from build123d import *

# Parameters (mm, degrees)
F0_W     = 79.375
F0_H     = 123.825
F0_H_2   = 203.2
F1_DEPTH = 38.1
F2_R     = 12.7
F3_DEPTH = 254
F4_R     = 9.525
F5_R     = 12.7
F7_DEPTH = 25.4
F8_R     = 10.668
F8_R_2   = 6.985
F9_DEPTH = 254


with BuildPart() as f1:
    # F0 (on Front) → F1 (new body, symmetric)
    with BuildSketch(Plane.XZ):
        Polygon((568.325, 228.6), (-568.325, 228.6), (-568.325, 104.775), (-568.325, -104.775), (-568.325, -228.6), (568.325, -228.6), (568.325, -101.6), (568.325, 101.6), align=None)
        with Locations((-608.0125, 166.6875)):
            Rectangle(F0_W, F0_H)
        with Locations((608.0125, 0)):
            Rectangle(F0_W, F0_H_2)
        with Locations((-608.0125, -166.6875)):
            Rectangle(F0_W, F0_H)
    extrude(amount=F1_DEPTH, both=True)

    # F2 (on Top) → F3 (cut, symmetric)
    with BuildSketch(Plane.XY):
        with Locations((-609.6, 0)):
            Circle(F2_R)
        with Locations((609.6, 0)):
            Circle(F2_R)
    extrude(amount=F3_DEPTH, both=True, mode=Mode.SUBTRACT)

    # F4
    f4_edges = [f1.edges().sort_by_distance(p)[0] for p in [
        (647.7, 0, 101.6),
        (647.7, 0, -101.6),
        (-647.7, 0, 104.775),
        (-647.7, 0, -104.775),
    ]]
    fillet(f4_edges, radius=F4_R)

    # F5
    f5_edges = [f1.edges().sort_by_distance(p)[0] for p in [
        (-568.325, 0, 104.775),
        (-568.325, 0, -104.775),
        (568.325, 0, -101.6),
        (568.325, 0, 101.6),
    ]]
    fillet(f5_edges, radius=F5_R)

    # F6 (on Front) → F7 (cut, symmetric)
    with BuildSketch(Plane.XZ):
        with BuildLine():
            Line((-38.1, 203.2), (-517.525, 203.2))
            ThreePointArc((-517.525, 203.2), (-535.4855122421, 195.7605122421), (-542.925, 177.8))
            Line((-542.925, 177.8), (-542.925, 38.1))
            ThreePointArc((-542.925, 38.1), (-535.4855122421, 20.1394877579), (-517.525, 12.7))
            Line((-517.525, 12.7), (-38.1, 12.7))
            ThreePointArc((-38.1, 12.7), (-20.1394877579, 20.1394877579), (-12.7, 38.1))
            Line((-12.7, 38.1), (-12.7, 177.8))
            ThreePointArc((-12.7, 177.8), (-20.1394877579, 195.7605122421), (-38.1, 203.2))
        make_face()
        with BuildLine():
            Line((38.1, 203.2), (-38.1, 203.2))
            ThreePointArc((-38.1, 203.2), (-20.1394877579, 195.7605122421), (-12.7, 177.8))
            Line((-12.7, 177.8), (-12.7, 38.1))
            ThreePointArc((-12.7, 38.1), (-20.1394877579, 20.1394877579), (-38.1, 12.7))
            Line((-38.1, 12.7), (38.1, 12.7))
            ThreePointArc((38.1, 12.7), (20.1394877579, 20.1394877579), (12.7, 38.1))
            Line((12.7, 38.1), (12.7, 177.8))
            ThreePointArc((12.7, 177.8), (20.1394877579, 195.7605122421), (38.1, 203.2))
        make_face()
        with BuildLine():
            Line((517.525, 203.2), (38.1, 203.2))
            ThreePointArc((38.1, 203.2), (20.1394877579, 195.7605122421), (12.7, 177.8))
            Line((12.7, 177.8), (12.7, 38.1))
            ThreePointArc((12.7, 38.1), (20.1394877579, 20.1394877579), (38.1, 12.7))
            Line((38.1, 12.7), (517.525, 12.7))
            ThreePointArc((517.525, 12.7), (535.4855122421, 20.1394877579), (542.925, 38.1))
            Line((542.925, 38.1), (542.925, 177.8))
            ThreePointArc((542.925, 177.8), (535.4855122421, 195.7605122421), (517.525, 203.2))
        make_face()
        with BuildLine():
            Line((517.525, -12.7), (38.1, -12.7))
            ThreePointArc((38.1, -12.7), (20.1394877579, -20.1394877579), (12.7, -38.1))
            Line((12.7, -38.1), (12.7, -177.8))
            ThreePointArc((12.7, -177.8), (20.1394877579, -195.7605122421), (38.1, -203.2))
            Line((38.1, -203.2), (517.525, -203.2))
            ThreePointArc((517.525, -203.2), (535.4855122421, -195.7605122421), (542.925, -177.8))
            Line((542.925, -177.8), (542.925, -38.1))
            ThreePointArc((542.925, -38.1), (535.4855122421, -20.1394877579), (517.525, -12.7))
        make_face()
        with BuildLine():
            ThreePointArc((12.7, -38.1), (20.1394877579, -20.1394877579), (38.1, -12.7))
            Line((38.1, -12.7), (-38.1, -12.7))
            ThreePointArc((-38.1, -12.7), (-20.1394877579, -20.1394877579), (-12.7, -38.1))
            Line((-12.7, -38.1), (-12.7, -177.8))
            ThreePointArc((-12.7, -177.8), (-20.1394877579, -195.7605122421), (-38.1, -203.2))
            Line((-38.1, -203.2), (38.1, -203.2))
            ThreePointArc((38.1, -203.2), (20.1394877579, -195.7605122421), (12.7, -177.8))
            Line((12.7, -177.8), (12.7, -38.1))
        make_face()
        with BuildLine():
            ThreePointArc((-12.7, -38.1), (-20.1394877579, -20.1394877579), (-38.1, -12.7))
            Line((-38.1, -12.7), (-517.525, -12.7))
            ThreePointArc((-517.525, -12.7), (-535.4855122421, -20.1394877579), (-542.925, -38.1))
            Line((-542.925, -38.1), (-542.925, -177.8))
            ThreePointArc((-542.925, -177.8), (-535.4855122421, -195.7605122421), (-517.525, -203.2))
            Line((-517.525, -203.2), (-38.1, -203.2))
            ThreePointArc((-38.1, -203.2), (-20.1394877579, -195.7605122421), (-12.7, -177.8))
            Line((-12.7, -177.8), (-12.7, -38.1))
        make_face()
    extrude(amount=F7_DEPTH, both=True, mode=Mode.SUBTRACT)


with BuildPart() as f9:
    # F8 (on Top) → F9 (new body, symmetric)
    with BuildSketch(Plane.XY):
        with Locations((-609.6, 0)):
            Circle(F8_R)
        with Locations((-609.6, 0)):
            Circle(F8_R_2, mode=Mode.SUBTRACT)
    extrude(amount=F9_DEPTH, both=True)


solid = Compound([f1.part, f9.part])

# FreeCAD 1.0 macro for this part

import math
import FreeCAD as App
import Part
import Sketcher

V = App.Vector
Q = App.Units.Quantity


def edges_at(feature, points):
    """Names of the edges that pass closest to the given points."""
    edges = feature.Shape.Edges
    near = lambda p: min(range(len(edges)), key=lambda i: edges[i].distToShape(Part.Vertex(*p))[0])
    return sorted({f"Edge{near(p) + 1}" for p in points})


def add_polygon(sketch, points):
    """Adds a closed chain of lines whose ends are joined by coincident constraints."""
    first, n = sketch.GeometryCount, len(points)
    for a, b in zip(points, points[1:] + points[:1]):
        sketch.addGeometry(Part.LineSegment(App.Vector(*a, 0), App.Vector(*b, 0)), False)
    for i in range(n):
        sketch.addConstraint(Sketcher.Constraint("Coincident", first + i, 2, first + (i + 1) % n, 1))

doc = App.newDocument("Part")
params = doc.addObject("Spreadsheet::Sheet", "Params")
for row, (alias, value) in enumerate([
    ("sketch1_height", "5 in"),
    ("sketch1_height2", "8 in"),
    ("sketch1_height3", "8.25 in"),
    ("sketch1_width", "47.875 in"),
    ("pad1_length", "3 in"),
    ("sketch2_diameter", "1 in"),
    ("pocket1_length", "20 in"),
    ("fillet_radius", "0.375 in"),
    ("fillet2_radius", "0.5 in"),
    ("sketch3_radius", "1 in"),
    ("sketch3_height", "5.5 in"),
    ("sketch3_width", "40.75 in"),
    ("pocket2_length", "2 in"),
    ("sketch4_diameter", "0.84 in"),
    ("sketch4_diameter2", "0.55 in"),
    ("pad2_length", "20 in"),
], start=1):
    params.set(f"A{row}", alias)
    params.set(f"B{row}", "=" + value)
    params.setAlias(f"B{row}", alias)

body = doc.addObject("PartDesign::Body", "Body")

sketch1 = doc.addObject("Sketcher::SketchObject", "Sketch")
body.addObject(sketch1)
sketch1.AttachmentSupport = (doc.XZ_Plane, [""])
sketch1.MapMode = "FlatFace"
add_polygon(sketch1, [(568, 229), (-648, 229), (-648, 105), (-568, 105), (-568, -105), (-648, -105), (-648, -229), (568, -229), (568, -102), (648, -102), (648, 102), (568, 102)])
sketch1.addConstraint([
    Sketcher.Constraint("Horizontal", 0),
    Sketcher.Constraint("Vertical", 1),
    Sketcher.Constraint("Horizontal", 2),
    Sketcher.Constraint("Vertical", 3),
    Sketcher.Constraint("Horizontal", 4),
    Sketcher.Constraint("Vertical", 5),
    Sketcher.Constraint("Horizontal", 6),
    Sketcher.Constraint("Vertical", 7),
    Sketcher.Constraint("Horizontal", 8),
    Sketcher.Constraint("Vertical", 9),
    Sketcher.Constraint("Horizontal", 10),
    Sketcher.Constraint("Vertical", 11),
    Sketcher.Constraint("Symmetric", 1, 2, 4, 2, -1),
    Sketcher.Constraint("Symmetric", 7, 2, 10, 2, -1),
    Sketcher.Constraint("Equal", 4, 8),
    Sketcher.Constraint("Equal", 1, 5),
    Sketcher.Constraint("DistanceY", 7, 1, 7, 2, Q("5 in")),
    Sketcher.Constraint("DistanceY", 9, 1, 9, 2, Q("8 in")),
    Sketcher.Constraint("DistanceX", 4, 2, 8, 2, Q("51 in")),
    Sketcher.Constraint("DistanceY", 3, 2, 3, 1, Q("8.25 in")),
    Sketcher.Constraint("DistanceX", 0, 2, -1, 1, Q("25.5 in")),
    Sketcher.Constraint("DistanceX", 0, 2, 0, 1, Q("47.875 in")),
])
sketch1.setExpression("Constraints[28]", "Params.sketch1_height")
sketch1.setExpression("Constraints[29]", "Params.sketch1_height2")
sketch1.setExpression("Constraints[31]", "Params.sketch1_height3")
sketch1.setExpression("Constraints[33]", "Params.sketch1_width")
pad1 = doc.addObject("PartDesign::Pad", "Pad")
body.addObject(pad1)
pad1.Profile = sketch1
pad1.setExpression("Length", "Params.pad1_length")
pad1.Midplane = True

sketch2 = doc.addObject("Sketcher::SketchObject", "Sketch001")
body.addObject(sketch2)
sketch2.AttachmentSupport = (doc.XY_Plane, [""])
sketch2.MapMode = "FlatFace"
sketch2.addGeometry([
    Part.Circle(V(-610, 0, 0), V(0, 0, 1), 13),
    Part.Circle(V(610, 0, 0), V(0, 0, 1), 13),
], False)
sketch2.addConstraint([
    Sketcher.Constraint("Equal", 0, 1),
    Sketcher.Constraint("Symmetric", 0, 3, 1, 3, -1, 1),
    Sketcher.Constraint("PointOnObject", 0, 3, -1),
    Sketcher.Constraint("Diameter", 0, Q("1 in")),
    Sketcher.Constraint("DistanceX", 0, 3, -1, 1, Q("24 in")),
])
sketch2.setExpression("Constraints[3]", "Params.sketch2_diameter")
pocket1 = doc.addObject("PartDesign::Pocket", "Pocket")
body.addObject(pocket1)
pocket1.Profile = sketch2
pocket1.setExpression("Length", "Params.pocket1_length")
pocket1.Midplane = True
doc.recompute()

fillet = doc.addObject("PartDesign::Fillet", "Fillet")
body.addObject(fillet)
fillet.Base = (pocket1, edges_at(pocket1, [
    (647.7, 0, 101.6),
    (647.7, 0, -101.6),
    (-647.7, 0, 104.775),
    (-647.7, 0, -104.775),
]))
fillet.setExpression("Radius", "Params.fillet_radius")
doc.recompute()

fillet2 = doc.addObject("PartDesign::Fillet", "Fillet001")
body.addObject(fillet2)
fillet2.Base = (fillet, edges_at(fillet, [
    (-568.325, 0, 104.775),
    (-568.325, 0, -104.775),
    (568.325, 0, -101.6),
    (568.325, 0, 101.6),
]))
fillet2.setExpression("Radius", "Params.fillet2_radius")

sketch3 = doc.addObject("Sketcher::SketchObject", "Sketch002")
body.addObject(sketch3)
sketch3.AttachmentSupport = (doc.XZ_Plane, [""])
sketch3.MapMode = "FlatFace"
sketch3.addGeometry([
    Part.ArcOfCircle(Part.Circle(V(-518, 178, 0), V(0, 0, 1), 25), math.radians(90), math.radians(180)),
    Part.LineSegment(V(-543, 178, 0), V(-543, 38, 0)),
    Part.ArcOfCircle(Part.Circle(V(-518, 38, 0), V(0, 0, 1), 25), math.radians(180), math.radians(270)),
    Part.LineSegment(V(-518, 13, 0), V(518, 13, 0)),
    Part.ArcOfCircle(Part.Circle(V(518, 38, 0), V(0, 0, 1), 25), math.radians(-90), math.radians(0)),
    Part.LineSegment(V(543, 38, 0), V(543, 178, 0)),
    Part.ArcOfCircle(Part.Circle(V(518, 178, 0), V(0, 0, 1), 25), math.radians(0), math.radians(90)),
    Part.LineSegment(V(518, 203, 0), V(-518, 203, 0)),
    Part.LineSegment(V(518, -13, 0), V(-518, -13, 0)),
    Part.ArcOfCircle(Part.Circle(V(-518, -38, 0), V(0, 0, 1), 25), math.radians(90), math.radians(180)),
    Part.LineSegment(V(-543, -38, 0), V(-543, -178, 0)),
    Part.ArcOfCircle(Part.Circle(V(-518, -178, 0), V(0, 0, 1), 25), math.radians(180), math.radians(270)),
    Part.LineSegment(V(-518, -203, 0), V(518, -203, 0)),
    Part.ArcOfCircle(Part.Circle(V(518, -178, 0), V(0, 0, 1), 25), math.radians(-90), math.radians(0)),
    Part.LineSegment(V(543, -178, 0), V(543, -38, 0)),
    Part.ArcOfCircle(Part.Circle(V(518, -38, 0), V(0, 0, 1), 25), math.radians(0), math.radians(90)),
], False)
sketch3.addConstraint([
    Sketcher.Constraint("Tangent", 0, 2, 1, 1),
    Sketcher.Constraint("Tangent", 1, 2, 2, 1),
    Sketcher.Constraint("Tangent", 2, 2, 3, 1),
    Sketcher.Constraint("Tangent", 3, 2, 4, 1),
    Sketcher.Constraint("Tangent", 4, 2, 5, 1),
    Sketcher.Constraint("Tangent", 5, 2, 6, 1),
    Sketcher.Constraint("Tangent", 6, 2, 7, 1),
    Sketcher.Constraint("Tangent", 7, 2, 0, 1),
    Sketcher.Constraint("Tangent", 8, 2, 9, 1),
    Sketcher.Constraint("Tangent", 9, 2, 10, 1),
    Sketcher.Constraint("Tangent", 10, 2, 11, 1),
    Sketcher.Constraint("Tangent", 11, 2, 12, 1),
    Sketcher.Constraint("Tangent", 12, 2, 13, 1),
    Sketcher.Constraint("Tangent", 13, 2, 14, 1),
    Sketcher.Constraint("Tangent", 14, 2, 15, 1),
    Sketcher.Constraint("Tangent", 15, 2, 8, 1),
    Sketcher.Constraint("Vertical", 1),
    Sketcher.Constraint("Horizontal", 3),
    Sketcher.Constraint("Vertical", 5),
    Sketcher.Constraint("Horizontal", 7),
    Sketcher.Constraint("Horizontal", 8),
    Sketcher.Constraint("Vertical", 10),
    Sketcher.Constraint("Horizontal", 12),
    Sketcher.Constraint("Vertical", 14),
    Sketcher.Constraint("Equal", 0, 2),
    Sketcher.Constraint("Equal", 2, 4),
    Sketcher.Constraint("Equal", 4, 6),
    Sketcher.Constraint("Equal", 6, 9),
    Sketcher.Constraint("Equal", 9, 11),
    Sketcher.Constraint("Equal", 11, 13),
    Sketcher.Constraint("Equal", 13, 15),
    Sketcher.Constraint("Symmetric", 4, 3, 9, 3, -1, 1),
    Sketcher.Constraint("Symmetric", 0, 3, 13, 3, -1, 1),
    Sketcher.Constraint("Vertical", 2, 3, 9, 3),
    Sketcher.Constraint("Radius", 0, Q("1 in")),
    Sketcher.Constraint("DistanceY", 1, 2, 1, 1, Q("5.5 in")),
    Sketcher.Constraint("DistanceY", -1, 1, 0, 3, Q("7 in")),
    Sketcher.Constraint("DistanceX", 3, 1, 3, 2, Q("40.75 in")),
])
sketch3.setExpression("Constraints[34]", "Params.sketch3_radius")
sketch3.setExpression("Constraints[35]", "Params.sketch3_height")
sketch3.setExpression("Constraints[37]", "Params.sketch3_width")
pocket2 = doc.addObject("PartDesign::Pocket", "Pocket001")
body.addObject(pocket2)
pocket2.Profile = sketch3
pocket2.setExpression("Length", "Params.pocket2_length")
pocket2.Midplane = True
body2 = doc.addObject("PartDesign::Body", "Body001")

sketch4 = doc.addObject("Sketcher::SketchObject", "Sketch003")
body2.addObject(sketch4)
sketch4.AttachmentSupport = (doc.getObject("XY_Plane001"), [""])
sketch4.MapMode = "FlatFace"
sketch4.addGeometry([
    Part.Circle(V(-610, 0, 0), V(0, 0, 1), 11),
    Part.Circle(V(-610, 0, 0), V(0, 0, 1), 7),
], False)
sketch4.addConstraint([
    Sketcher.Constraint("Coincident", 1, 3, 0, 3),
    Sketcher.Constraint("PointOnObject", 0, 3, -1),
    Sketcher.Constraint("Diameter", 0, Q("0.84 in")),
    Sketcher.Constraint("Diameter", 1, Q("0.55 in")),
    Sketcher.Constraint("DistanceX", 0, 3, -1, 1, Q("24 in")),
])
sketch4.setExpression("Constraints[2]", "Params.sketch4_diameter")
sketch4.setExpression("Constraints[3]", "Params.sketch4_diameter2")
pad2 = doc.addObject("PartDesign::Pad", "Pad001")
body2.addObject(pad2)
pad2.Profile = sketch4
pad2.setExpression("Length", "Params.pad2_length")
pad2.Midplane = True

doc.recompute()
